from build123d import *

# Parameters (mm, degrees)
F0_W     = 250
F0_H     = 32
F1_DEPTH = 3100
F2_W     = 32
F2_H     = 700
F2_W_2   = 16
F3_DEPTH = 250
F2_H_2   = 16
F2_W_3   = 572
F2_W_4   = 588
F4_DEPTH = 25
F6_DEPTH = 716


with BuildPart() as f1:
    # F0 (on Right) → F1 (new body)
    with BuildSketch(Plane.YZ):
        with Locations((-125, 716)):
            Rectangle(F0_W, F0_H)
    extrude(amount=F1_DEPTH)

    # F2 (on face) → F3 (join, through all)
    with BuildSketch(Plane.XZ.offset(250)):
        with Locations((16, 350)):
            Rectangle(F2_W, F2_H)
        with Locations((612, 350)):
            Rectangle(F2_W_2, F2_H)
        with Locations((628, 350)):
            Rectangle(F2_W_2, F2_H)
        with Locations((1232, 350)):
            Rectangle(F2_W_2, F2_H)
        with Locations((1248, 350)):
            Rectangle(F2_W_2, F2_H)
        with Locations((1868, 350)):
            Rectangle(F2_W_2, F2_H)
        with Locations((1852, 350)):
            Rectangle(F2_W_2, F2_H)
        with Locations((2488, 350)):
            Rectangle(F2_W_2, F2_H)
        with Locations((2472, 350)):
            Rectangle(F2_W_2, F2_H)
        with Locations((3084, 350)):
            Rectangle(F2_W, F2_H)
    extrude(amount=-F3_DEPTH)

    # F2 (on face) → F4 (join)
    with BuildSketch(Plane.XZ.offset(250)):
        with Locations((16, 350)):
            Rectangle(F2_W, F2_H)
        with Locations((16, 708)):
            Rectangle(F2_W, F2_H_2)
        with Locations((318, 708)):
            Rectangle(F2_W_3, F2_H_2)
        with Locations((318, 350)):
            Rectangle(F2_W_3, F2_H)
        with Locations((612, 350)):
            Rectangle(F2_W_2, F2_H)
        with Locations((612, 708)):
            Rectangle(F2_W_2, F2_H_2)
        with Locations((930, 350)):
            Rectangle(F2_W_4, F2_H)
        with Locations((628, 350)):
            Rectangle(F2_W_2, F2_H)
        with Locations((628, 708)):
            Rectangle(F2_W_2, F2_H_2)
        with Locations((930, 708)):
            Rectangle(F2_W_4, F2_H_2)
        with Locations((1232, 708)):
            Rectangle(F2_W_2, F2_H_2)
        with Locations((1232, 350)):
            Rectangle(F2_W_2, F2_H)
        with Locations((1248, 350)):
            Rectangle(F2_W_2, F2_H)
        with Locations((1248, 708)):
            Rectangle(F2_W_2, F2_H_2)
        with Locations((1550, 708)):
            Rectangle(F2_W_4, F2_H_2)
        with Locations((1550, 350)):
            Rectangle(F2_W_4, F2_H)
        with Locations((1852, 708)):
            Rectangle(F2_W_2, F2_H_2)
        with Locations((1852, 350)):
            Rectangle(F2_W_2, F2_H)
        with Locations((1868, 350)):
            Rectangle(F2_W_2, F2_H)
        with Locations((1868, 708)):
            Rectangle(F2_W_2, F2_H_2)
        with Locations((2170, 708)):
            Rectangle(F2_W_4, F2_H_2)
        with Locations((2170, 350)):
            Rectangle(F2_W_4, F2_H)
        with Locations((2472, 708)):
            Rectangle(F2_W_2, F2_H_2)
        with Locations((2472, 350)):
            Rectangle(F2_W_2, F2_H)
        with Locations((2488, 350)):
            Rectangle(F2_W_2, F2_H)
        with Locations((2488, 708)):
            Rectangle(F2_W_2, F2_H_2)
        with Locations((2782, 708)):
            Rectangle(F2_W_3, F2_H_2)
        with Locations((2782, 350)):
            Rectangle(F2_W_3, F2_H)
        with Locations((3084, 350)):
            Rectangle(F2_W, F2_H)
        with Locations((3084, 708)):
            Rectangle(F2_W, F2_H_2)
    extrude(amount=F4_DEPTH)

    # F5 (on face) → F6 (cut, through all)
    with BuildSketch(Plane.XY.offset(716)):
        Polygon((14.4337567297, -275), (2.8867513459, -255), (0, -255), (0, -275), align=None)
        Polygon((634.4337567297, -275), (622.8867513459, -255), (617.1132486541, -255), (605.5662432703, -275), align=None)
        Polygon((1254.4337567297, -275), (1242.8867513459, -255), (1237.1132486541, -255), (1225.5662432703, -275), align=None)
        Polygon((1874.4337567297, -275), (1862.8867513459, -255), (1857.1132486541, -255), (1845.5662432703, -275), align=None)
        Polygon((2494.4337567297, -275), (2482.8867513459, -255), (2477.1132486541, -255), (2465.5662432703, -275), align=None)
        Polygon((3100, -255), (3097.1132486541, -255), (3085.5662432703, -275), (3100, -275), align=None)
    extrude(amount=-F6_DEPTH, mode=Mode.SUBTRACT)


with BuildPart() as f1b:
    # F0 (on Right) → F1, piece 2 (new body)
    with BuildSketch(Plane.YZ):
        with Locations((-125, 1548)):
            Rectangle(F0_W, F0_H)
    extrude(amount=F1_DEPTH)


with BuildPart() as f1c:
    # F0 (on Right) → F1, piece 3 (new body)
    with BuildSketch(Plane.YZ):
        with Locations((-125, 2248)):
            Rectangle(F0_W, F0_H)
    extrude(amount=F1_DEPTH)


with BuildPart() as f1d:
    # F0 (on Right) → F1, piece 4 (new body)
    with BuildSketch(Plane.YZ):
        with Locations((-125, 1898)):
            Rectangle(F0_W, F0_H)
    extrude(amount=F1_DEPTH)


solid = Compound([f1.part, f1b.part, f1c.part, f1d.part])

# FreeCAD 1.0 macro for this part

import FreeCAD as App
import Part
import Sketcher
from FreeCAD import Vector
Q = App.Units.Quantity

doc = App.newDocument("Part")
body = doc.addObject("PartDesign::Body", "Body")

# Sketch on YZ plane
sketch1 = body.newObject("Sketcher::SketchObject", "Sketch")
sketch1.AttachmentSupport = (doc.getObject("YZ_Plane"), [""])
sketch1.MapMode = "FlatFace"
sketch1.addGeometry([
    Part.LineSegment(Vector(-250, 732, 0), Vector(-250, 700, 0)),
    Part.LineSegment(Vector(-250, 700, 0), Vector(0, 700, 0)),
    Part.LineSegment(Vector(0, 700, 0), Vector(0, 732, 0)),
    Part.LineSegment(Vector(0, 732, 0), Vector(-250, 732, 0)),
], False)
sketch1.addConstraint([
    Sketcher.Constraint("Coincident", 0, 2, 1, 1),
    Sketcher.Constraint("Coincident", 1, 2, 2, 1),
    Sketcher.Constraint("Coincident", 2, 2, 3, 1),
    Sketcher.Constraint("Coincident", 3, 2, 0, 1),
    Sketcher.Constraint("Vertical", 0),
    Sketcher.Constraint("Horizontal", 1),
    Sketcher.Constraint("Vertical", 2),
    Sketcher.Constraint("Horizontal", 3),
    Sketcher.Constraint("PointOnObject", 1, 2, -2),
    Sketcher.Constraint("DistanceX", 1, 1, 1, 2, 250.0),
    Sketcher.Constraint("DistanceY", 0, 2, 0, 1, 32.0),
    Sketcher.Constraint("DistanceY", -1, 1, 0, 2, 700.0),
])
pad1 = body.newObject("PartDesign::Pad", "Pad")
pad1.Profile = sketch1
pad1.Length = 3100

# Sketch on XZ plane
sketch2 = body.newObject("Sketcher::SketchObject", "Sketch001")
sketch2.AttachmentSupport = (doc.getObject("XZ_Plane"), [""])
sketch2.MapMode = "FlatFace"
sketch2.AttachmentOffset = App.Placement(Vector(0, 0, 250), App.Rotation())
sketch2.addGeometry([
    Part.LineSegment(Vector(0, 700, 0), Vector(0, 0, 0)),  # 0
    Part.LineSegment(Vector(0, 0, 0), Vector(32, 0, 0)),  # 1
    Part.LineSegment(Vector(32, 0, 0), Vector(32, 700, 0)),  # 2
    Part.LineSegment(Vector(32, 700, 0), Vector(0, 700, 0)),  # 3
    Part.LineSegment(Vector(604, 700, 0), Vector(604, 0, 0)),  # 4
    Part.LineSegment(Vector(604, 0, 0), Vector(636, 0, 0)),  # 5
    Part.LineSegment(Vector(636, 0, 0), Vector(636, 700, 0)),  # 6
    Part.LineSegment(Vector(636, 700, 0), Vector(604, 700, 0)),  # 7
    Part.LineSegment(Vector(1224, 700, 0), Vector(1224, 0, 0)),  # 8
    Part.LineSegment(Vector(1224, 0, 0), Vector(1256, 0, 0)),  # 9
    Part.LineSegment(Vector(1256, 0, 0), Vector(1256, 700, 0)),  # 10
    Part.LineSegment(Vector(1256, 700, 0), Vector(1224, 700, 0)),  # 11
    Part.LineSegment(Vector(1876, 0, 0), Vector(1876, 700, 0)),  # 12
    Part.LineSegment(Vector(1876, 700, 0), Vector(1844, 700, 0)),  # 13
    Part.LineSegment(Vector(1844, 700, 0), Vector(1844, 0, 0)),  # 14
    Part.LineSegment(Vector(1844, 0, 0), Vector(1876, 0, 0)),  # 15
    Part.LineSegment(Vector(2496, 0, 0), Vector(2496, 700, 0)),  # 16
    Part.LineSegment(Vector(2496, 700, 0), Vector(2464, 700, 0)),  # 17
    Part.LineSegment(Vector(2464, 700, 0), Vector(2464, 0, 0)),  # 18
    Part.LineSegment(Vector(2464, 0, 0), Vector(2496, 0, 0)),  # 19
    Part.LineSegment(Vector(3068, 700, 0), Vector(3068, 0, 0)),  # 20
    Part.LineSegment(Vector(3068, 0, 0), Vector(3100, 0, 0)),  # 21
    Part.LineSegment(Vector(3100, 0, 0), Vector(3100, 700, 0)),  # 22
    Part.LineSegment(Vector(3100, 700, 0), Vector(3068, 700, 0)),  # 23
], False)
sketch2.addConstraint([
    Sketcher.Constraint("Coincident", 0, 2, 1, 1),
    Sketcher.Constraint("Coincident", 1, 2, 2, 1),
    Sketcher.Constraint("Coincident", 2, 2, 3, 1),
    Sketcher.Constraint("Coincident", 3, 2, 0, 1),
    Sketcher.Constraint("Coincident", 4, 2, 5, 1),
    Sketcher.Constraint("Coincident", 5, 2, 6, 1),
    Sketcher.Constraint("Coincident", 6, 2, 7, 1),
    Sketcher.Constraint("Coincident", 7, 2, 4, 1),
    Sketcher.Constraint("Coincident", 8, 2, 9, 1),
    Sketcher.Constraint("Coincident", 9, 2, 10, 1),
    Sketcher.Constraint("Coincident", 10, 2, 11, 1),
    Sketcher.Constraint("Coincident", 11, 2, 8, 1),
    Sketcher.Constraint("Coincident", 12, 2, 13, 1),
    Sketcher.Constraint("Coincident", 13, 2, 14, 1),
    Sketcher.Constraint("Coincident", 14, 2, 15, 1),
    Sketcher.Constraint("Coincident", 15, 2, 12, 1),
    Sketcher.Constraint("Coincident", 16, 2, 17, 1),
    Sketcher.Constraint("Coincident", 17, 2, 18, 1),
    Sketcher.Constraint("Coincident", 18, 2, 19, 1),
    Sketcher.Constraint("Coincident", 19, 2, 16, 1),
    Sketcher.Constraint("Coincident", 20, 2, 21, 1),
    Sketcher.Constraint("Coincident", 21, 2, 22, 1),
    Sketcher.Constraint("Coincident", 22, 2, 23, 1),
    Sketcher.Constraint("Coincident", 23, 2, 20, 1),
    Sketcher.Constraint("Vertical", 0),
    Sketcher.Constraint("Horizontal", 1),
    Sketcher.Constraint("Vertical", 2),
    Sketcher.Constraint("Horizontal", 3),
    Sketcher.Constraint("Vertical", 4),
    Sketcher.Constraint("Horizontal", 5),
    Sketcher.Constraint("Vertical", 6),
    Sketcher.Constraint("Horizontal", 7),
    Sketcher.Constraint("Vertical", 8),
    Sketcher.Constraint("Horizontal", 9),
    Sketcher.Constraint("Vertical", 10),
    Sketcher.Constraint("Horizontal", 11),
    Sketcher.Constraint("Vertical", 12),
    Sketcher.Constraint("Horizontal", 13),
    Sketcher.Constraint("Vertical", 14),
    Sketcher.Constraint("Horizontal", 15),
    Sketcher.Constraint("Vertical", 16),
    Sketcher.Constraint("Horizontal", 17),
    Sketcher.Constraint("Vertical", 18),
    Sketcher.Constraint("Horizontal", 19),
    Sketcher.Constraint("Vertical", 20),
    Sketcher.Constraint("Horizontal", 21),
    Sketcher.Constraint("Vertical", 22),
    Sketcher.Constraint("Horizontal", 23),
    Sketcher.Constraint("Coincident", 0, 2, -1, 1),
    Sketcher.Constraint("PointOnObject", 4, 2, -1),
    Sketcher.Constraint("PointOnObject", 8, 2, -1),
    Sketcher.Constraint("PointOnObject", 14, 2, -1),
    Sketcher.Constraint("PointOnObject", 18, 2, -1),
    Sketcher.Constraint("PointOnObject", 20, 2, -1),
    Sketcher.Constraint("Horizontal", 3, 2, 6, 2),
    Sketcher.Constraint("Horizontal", 7, 2, 10, 2),
    Sketcher.Constraint("Horizontal", 11, 2, 12, 2),
    Sketcher.Constraint("Horizontal", 13, 2, 16, 2),
    Sketcher.Constraint("Horizontal", 17, 2, 22, 2),
    Sketcher.Constraint("Equal", 3, 5),
    Sketcher.Constraint("Equal", 7, 9),
    Sketcher.Constraint("Equal", 11, 13),
    Sketcher.Constraint("Equal", 15, 17),
    Sketcher.Constraint("Equal", 19, 21),
    Sketcher.Constraint("DistanceX", 1, 1, 1, 2, 32.0),
    Sketcher.Constraint("DistanceY", 0, 2, 0, 1, 700.0),
    Sketcher.Constraint("DistanceX", -1, 1, 4, 2, 604.0),
    Sketcher.Constraint("DistanceX", -1, 1, 8, 2, 1224.0),
    Sketcher.Constraint("DistanceX", -1, 1, 12, 2, 1876.0),
    Sketcher.Constraint("DistanceX", -1, 1, 16, 2, 2496.0),
    Sketcher.Constraint("DistanceX", -1, 1, 20, 2, 3068.0),
])
pad2 = body.newObject("PartDesign::Pad", "Pad001")
pad2.Profile = sketch2
pad2.Length = 250
pad2.Reversed = True

# Sketch on XZ plane
sketch3 = body.newObject("Sketcher::SketchObject", "Sketch002")
sketch3.AttachmentSupport = (doc.getObject("XZ_Plane"), [""])
sketch3.MapMode = "FlatFace"
sketch3.AttachmentOffset = App.Placement(Vector(0, 0, 250), App.Rotation())
sketch3.addGeometry([
    Part.LineSegment(Vector(0, 0, 0), Vector(3100, 0, 0)),
    Part.LineSegment(Vector(3100, 0, 0), Vector(3100, 716, 0)),
    Part.LineSegment(Vector(3100, 716, 0), Vector(0, 716, 0)),
    Part.LineSegment(Vector(0, 716, 0), Vector(0, 0, 0)),
], False)
sketch3.addConstraint([
    Sketcher.Constraint("Coincident", 0, 2, 1, 1),
    Sketcher.Constraint("Coincident", 1, 2, 2, 1),
    Sketcher.Constraint("Coincident", 2, 2, 3, 1),
    Sketcher.Constraint("Coincident", 3, 2, 0, 1),
    Sketcher.Constraint("Horizontal", 0),
    Sketcher.Constraint("Vertical", 1),
    Sketcher.Constraint("Horizontal", 2),
    Sketcher.Constraint("Vertical", 3),
    Sketcher.Constraint("Coincident", 3, 2, -1, 1),
    Sketcher.Constraint("DistanceX", 0, 1, 0, 2, 3100.0),
    Sketcher.Constraint("DistanceY", 1, 1, 1, 2, 716.0),
])
pad3 = body.newObject("PartDesign::Pad", "Pad002")
pad3.Profile = sketch3
pad3.Length = 25

# Sketch on XY plane
sketch4 = body.newObject("Sketcher::SketchObject", "Sketch003")
sketch4.AttachmentSupport = (doc.getObject("XY_Plane"), [""])
sketch4.MapMode = "FlatFace"
sketch4.AttachmentOffset = App.Placement(Vector(0, 0, 716), App.Rotation())
sketch4.addGeometry([
    Part.LineSegment(Vector(14.4, -275, 0), Vector(2.9, -255, 0)),  # 0
    Part.LineSegment(Vector(2.9, -255, 0), Vector(0, -255, 0)),  # 1
    Part.LineSegment(Vector(0, -255, 0), Vector(0, -275, 0)),  # 2
    Part.LineSegment(Vector(0, -275, 0), Vector(14.4, -275, 0)),  # 3
    Part.LineSegment(Vector(634.4, -275, 0), Vector(622.9, -255, 0)),  # 4
    Part.LineSegment(Vector(622.9, -255, 0), Vector(617.1, -255, 0)),  # 5
    Part.LineSegment(Vector(617.1, -255, 0), Vector(605.6, -275, 0)),  # 6
    Part.LineSegment(Vector(605.6, -275, 0), Vector(634.4, -275, 0)),  # 7
    Part.LineSegment(Vector(1254.4, -275, 0), Vector(1242.9, -255, 0)),  # 8
    Part.LineSegment(Vector(1242.9, -255, 0), Vector(1237.1, -255, 0)),  # 9
    Part.LineSegment(Vector(1237.1, -255, 0), Vector(1225.6, -275, 0)),  # 10
    Part.LineSegment(Vector(1225.6, -275, 0), Vector(1254.4, -275, 0)),  # 11
    Part.LineSegment(Vector(1874.4, -275, 0), Vector(1862.9, -255, 0)),  # 12
    Part.LineSegment(Vector(1862.9, -255, 0), Vector(1857.1, -255, 0)),  # 13
    Part.LineSegment(Vector(1857.1, -255, 0), Vector(1845.6, -275, 0)),  # 14
    Part.LineSegment(Vector(1845.6, -275, 0), Vector(1874.4, -275, 0)),  # 15
    Part.LineSegment(Vector(2494.4, -275, 0), Vector(2482.9, -255, 0)),  # 16
    Part.LineSegment(Vector(2482.9, -255, 0), Vector(2477.1, -255, 0)),  # 17
    Part.LineSegment(Vector(2477.1, -255, 0), Vector(2465.6, -275, 0)),  # 18
    Part.LineSegment(Vector(2465.6, -275, 0), Vector(2494.4, -275, 0)),  # 19
    Part.LineSegment(Vector(3100, -255, 0), Vector(3097.1, -255, 0)),  # 20
    Part.LineSegment(Vector(3097.1, -255, 0), Vector(3085.6, -275, 0)),  # 21
    Part.LineSegment(Vector(3085.6, -275, 0), Vector(3100, -275, 0)),  # 22
    Part.LineSegment(Vector(3100, -275, 0), Vector(3100, -255, 0)),  # 23
], False)
sketch4.addConstraint([
    Sketcher.Constraint("Coincident", 0, 2, 1, 1),
    Sketcher.Constraint("Coincident", 1, 2, 2, 1),
    Sketcher.Constraint("Coincident", 2, 2, 3, 1),
    Sketcher.Constraint("Coincident", 3, 2, 0, 1),
    Sketcher.Constraint("Coincident", 4, 2, 5, 1),
    Sketcher.Constraint("Coincident", 5, 2, 6, 1),
    Sketcher.Constraint("Coincident", 6, 2, 7, 1),
    Sketcher.Constraint("Coincident", 7, 2, 4, 1),
    Sketcher.Constraint("Coincident", 8, 2, 9, 1),
    Sketcher.Constraint("Coincident", 9, 2, 10, 1),
    Sketcher.Constraint("Coincident", 10, 2, 11, 1),
    Sketcher.Constraint("Coincident", 11, 2, 8, 1),
    Sketcher.Constraint("Coincident", 12, 2, 13, 1),
    Sketcher.Constraint("Coincident", 13, 2, 14, 1),
    Sketcher.Constraint("Coincident", 14, 2, 15, 1),
    Sketcher.Constraint("Coincident", 15, 2, 12, 1),
    Sketcher.Constraint("Coincident", 16, 2, 17, 1),
    Sketcher.Constraint("Coincident", 17, 2, 18, 1),
    Sketcher.Constraint("Coincident", 18, 2, 19, 1),
    Sketcher.Constraint("Coincident", 19, 2, 16, 1),
    Sketcher.Constraint("Coincident", 20, 2, 21, 1),
    Sketcher.Constraint("Coincident", 21, 2, 22, 1),
    Sketcher.Constraint("Coincident", 22, 2, 23, 1),
    Sketcher.Constraint("Coincident", 23, 2, 20, 1),
    Sketcher.Constraint("Horizontal", 1),
    Sketcher.Constraint("Vertical", 2),
    Sketcher.Constraint("Horizontal", 3),
    Sketcher.Constraint("Horizontal", 5),
    Sketcher.Constraint("Horizontal", 7),
    Sketcher.Constraint("Horizontal", 9),
    Sketcher.Constraint("Horizontal", 11),
    Sketcher.Constraint("Horizontal", 13),
    Sketcher.Constraint("Horizontal", 15),
    Sketcher.Constraint("Horizontal", 17),
    Sketcher.Constraint("Horizontal", 19),
    Sketcher.Constraint("Horizontal", 20),
    Sketcher.Constraint("Horizontal", 22),
    Sketcher.Constraint("Vertical", 23),
    Sketcher.Constraint("PointOnObject", 1, 2, -2),
    Sketcher.Constraint("Parallel", 0, 4),
    Sketcher.Constraint("Parallel", 4, 8),
    Sketcher.Constraint("Parallel", 6, 10),
    Sketcher.Constraint("Parallel", 8, 12),
    Sketcher.Constraint("Parallel", 10, 14),
    Sketcher.Constraint("Parallel", 12, 16),
    Sketcher.Constraint("Parallel", 14, 18),
    Sketcher.Constraint("Parallel", 18, 21),
    Sketcher.Constraint("Horizontal", 1, 2, 4, 2),
    Sketcher.Constraint("Horizontal", 3, 2, 6, 2),
    Sketcher.Constraint("Horizontal", 5, 2, 8, 2),
    Sketcher.Constraint("Horizontal", 7, 2, 10, 2),
    Sketcher.Constraint("Horizontal", 9, 2, 12, 2),
    Sketcher.Constraint("Horizontal", 11, 2, 14, 2),
    Sketcher.Constraint("Horizontal", 13, 2, 16, 2),
    Sketcher.Constraint("Horizontal", 15, 2, 18, 2),
    Sketcher.Constraint("Horizontal", 17, 2, 20, 2),
    Sketcher.Constraint("Horizontal", 19, 2, 21, 2),
    Sketcher.Constraint("Equal", 5, 9),
    Sketcher.Constraint("Equal", 9, 13),
    Sketcher.Constraint("Equal", 13, 17),
    Sketcher.Constraint("Equal", 1, 20),
    Sketcher.Constraint("Equal", 3, 22),
    Sketcher.Constraint("DistanceY", 2, 2, 2, 1, 20.0),
    Sketcher.Constraint("Angle", 0, Q("120 deg")),
    Sketcher.Constraint("DistanceY", 0, 2, -1, 1, 255.0),
    Sketcher.Constraint("DistanceX", -1, 1, 22, 2, 3100.0),
    Sketcher.Constraint("DistanceX", 0, 2, 4, 2, 620.0),
    Sketcher.Constraint("DistanceX", 4, 2, 8, 2, 620.0),
    Sketcher.Constraint("DistanceX", 8, 2, 12, 2, 620.0),
    Sketcher.Constraint("DistanceX", 12, 2, 16, 2, 620.0),
    Sketcher.Constraint("DistanceX", 17, 2, 20, 2, 620.0),
    Sketcher.Constraint("DistanceX", 1, 2, 1, 1, 2.886751),
])
pocket1 = body.newObject("PartDesign::Pocket", "Pocket")
pocket1.Profile = sketch4
pocket1.Type = "ThroughAll"
body2 = doc.addObject("PartDesign::Body", "Body001")

# Sketch on YZ plane
sketch5 = body2.newObject("Sketcher::SketchObject", "Sketch004")
sketch5.AttachmentSupport = (doc.getObject("YZ_Plane001"), [""])
sketch5.MapMode = "FlatFace"
sketch5.addGeometry([
    Part.LineSegment(Vector(-250, 1564, 0), Vector(-250, 1532, 0)),
    Part.LineSegment(Vector(-250, 1532, 0), Vector(0, 1532, 0)),
    Part.LineSegment(Vector(0, 1532, 0), Vector(0, 1564, 0)),
    Part.LineSegment(Vector(0, 1564, 0), Vector(-250, 1564, 0)),
], False)
sketch5.addConstraint([
    Sketcher.Constraint("Coincident", 0, 2, 1, 1),
    Sketcher.Constraint("Coincident", 1, 2, 2, 1),
    Sketcher.Constraint("Coincident", 2, 2, 3, 1),
    Sketcher.Constraint("Coincident", 3, 2, 0, 1),
    Sketcher.Constraint("Vertical", 0),
    Sketcher.Constraint("Horizontal", 1),
    Sketcher.Constraint("Vertical", 2),
    Sketcher.Constraint("Horizontal", 3),
    Sketcher.Constraint("PointOnObject", 1, 2, -2),
    Sketcher.Constraint("DistanceX", 1, 1, 1, 2, 250.0),
    Sketcher.Constraint("DistanceY", 0, 2, 0, 1, 32.0),
    Sketcher.Constraint("DistanceY", -1, 1, 0, 2, 1532.0),
])
pad4 = body2.newObject("PartDesign::Pad", "Pad003")
pad4.Profile = sketch5
pad4.Length = 3100
body3 = doc.addObject("PartDesign::Body", "Body002")

# Sketch on YZ plane
sketch6 = body3.newObject("Sketcher::SketchObject", "Sketch005")
sketch6.AttachmentSupport = (doc.getObject("YZ_Plane002"), [""])
sketch6.MapMode = "FlatFace"
sketch6.addGeometry([
    Part.LineSegment(Vector(-250, 2264, 0), Vector(-250, 2232, 0)),
    Part.LineSegment(Vector(-250, 2232, 0), Vector(0, 2232, 0)),
    Part.LineSegment(Vector(0, 2232, 0), Vector(0, 2264, 0)),
    Part.LineSegment(Vector(0, 2264, 0), Vector(-250, 2264, 0)),
], False)
sketch6.addConstraint([
    Sketcher.Constraint("Coincident", 0, 2, 1, 1),
    Sketcher.Constraint("Coincident", 1, 2, 2, 1),
    Sketcher.Constraint("Coincident", 2, 2, 3, 1),
    Sketcher.Constraint("Coincident", 3, 2, 0, 1),
    Sketcher.Constraint("Vertical", 0),
    Sketcher.Constraint("Horizontal", 1),
    Sketcher.Constraint("Vertical", 2),
    Sketcher.Constraint("Horizontal", 3),
    Sketcher.Constraint("PointOnObject", 1, 2, -2),
    Sketcher.Constraint("DistanceX", 1, 1, 1, 2, 250.0),
    Sketcher.Constraint("DistanceY", 0, 2, 0, 1, 32.0),
    Sketcher.Constraint("DistanceY", -1, 1, 0, 2, 2232.0),
])
pad5 = body3.newObject("PartDesign::Pad", "Pad004")
pad5.Profile = sketch6
pad5.Length = 3100
body4 = doc.addObject("PartDesign::Body", "Body003")

# Sketch on YZ plane
sketch7 = body4.newObject("Sketcher::SketchObject", "Sketch006")
sketch7.AttachmentSupport = (doc.getObject("YZ_Plane003"), [""])
sketch7.MapMode = "FlatFace"
sketch7.addGeometry([
    Part.LineSegment(Vector(-250, 1914, 0), Vector(-250, 1882, 0)),
    Part.LineSegment(Vector(-250, 1882, 0), Vector(0, 1882, 0)),
    Part.LineSegment(Vector(0, 1882, 0), Vector(0, 1914, 0)),
    Part.LineSegment(Vector(0, 1914, 0), Vector(-250, 1914, 0)),
], False)
sketch7.addConstraint([
    Sketcher.Constraint("Coincident", 0, 2, 1, 1),
    Sketcher.Constraint("Coincident", 1, 2, 2, 1),
    Sketcher.Constraint("Coincident", 2, 2, 3, 1),
    Sketcher.Constraint("Coincident", 3, 2, 0, 1),
    Sketcher.Constraint("Vertical", 0),
    Sketcher.Constraint("Horizontal", 1),
    Sketcher.Constraint("Vertical", 2),
    Sketcher.Constraint("Horizontal", 3),
    Sketcher.Constraint("PointOnObject", 1, 2, -2),
    Sketcher.Constraint("DistanceX", 1, 1, 1, 2, 250.0),
    Sketcher.Constraint("DistanceY", 0, 2, 0, 1, 32.0),
    Sketcher.Constraint("DistanceY", -1, 1, 0, 2, 1882.0),
])
pad6 = body4.newObject("PartDesign::Pad", "Pad005")
pad6.Profile = sketch7
pad6.Length = 3100

doc.recompute()
